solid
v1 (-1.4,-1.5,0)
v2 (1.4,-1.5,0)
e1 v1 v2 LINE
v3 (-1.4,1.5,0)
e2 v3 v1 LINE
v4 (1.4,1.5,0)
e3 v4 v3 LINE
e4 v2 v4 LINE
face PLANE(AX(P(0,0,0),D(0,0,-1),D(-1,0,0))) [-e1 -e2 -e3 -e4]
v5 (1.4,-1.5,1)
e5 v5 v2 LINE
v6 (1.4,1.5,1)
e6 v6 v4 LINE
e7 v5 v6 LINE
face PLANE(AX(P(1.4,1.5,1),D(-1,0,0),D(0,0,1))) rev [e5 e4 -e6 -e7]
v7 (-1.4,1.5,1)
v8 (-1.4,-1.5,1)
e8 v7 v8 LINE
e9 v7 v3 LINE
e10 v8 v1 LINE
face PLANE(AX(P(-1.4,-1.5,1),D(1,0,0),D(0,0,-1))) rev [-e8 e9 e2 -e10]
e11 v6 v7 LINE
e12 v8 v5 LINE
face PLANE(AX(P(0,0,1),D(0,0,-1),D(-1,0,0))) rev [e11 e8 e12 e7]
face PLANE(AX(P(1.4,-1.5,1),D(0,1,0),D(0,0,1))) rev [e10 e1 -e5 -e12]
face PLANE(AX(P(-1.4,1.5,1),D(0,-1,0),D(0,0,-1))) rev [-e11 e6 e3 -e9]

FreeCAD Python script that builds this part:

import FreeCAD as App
import Part
import Sketcher


def add_polygon(sketch, points):
    """Adds a closed chain of lines whose ends are joined by coincident constraints."""
    first, n = sketch.GeometryCount, len(points)
    for a, b in zip(points, points[1:] + points[:1]):
        sketch.addGeometry(Part.LineSegment(App.Vector(*a, 0), App.Vector(*b, 0)), False)
    for i in range(n):
        sketch.addConstraint(Sketcher.Constraint("Coincident", first + i, 2, first + (i + 1) % n, 1))

doc = App.newDocument("Part")
body = doc.addObject("PartDesign::Body", "Body")

# Sketch on XY plane
sketch1 = doc.addObject("Sketcher::SketchObject", "Sketch")
body.addObject(sketch1)
sketch1.AttachmentSupport = (doc.XY_Plane, [""])
sketch1.MapMode = "FlatFace"
add_polygon(sketch1, [(-1.4, 1.5), (-1.4, -1.5), (1.4, -1.5), (1.4, 1.5)])  # lines 0-3
sketch1.addConstraint([
    Sketcher.Constraint("Vertical", 0),
    Sketcher.Constraint("Horizontal", 1),
    Sketcher.Constraint("Vertical", 2),
    Sketcher.Constraint("Horizontal", 3),
    Sketcher.Constraint("Symmetric", 0, 2, 2, 2, -1, 1),
    Sketcher.Constraint("DistanceY", 0, 2, 0, 1, 3.0),
    Sketcher.Constraint("DistanceX", 1, 1, 1, 2, 2.8),
])
pad1 = doc.addObject("PartDesign::Pad", "Pad")
body.addObject(pad1)
pad1.Profile = sketch1
pad1.Length = 1

doc.recompute()
